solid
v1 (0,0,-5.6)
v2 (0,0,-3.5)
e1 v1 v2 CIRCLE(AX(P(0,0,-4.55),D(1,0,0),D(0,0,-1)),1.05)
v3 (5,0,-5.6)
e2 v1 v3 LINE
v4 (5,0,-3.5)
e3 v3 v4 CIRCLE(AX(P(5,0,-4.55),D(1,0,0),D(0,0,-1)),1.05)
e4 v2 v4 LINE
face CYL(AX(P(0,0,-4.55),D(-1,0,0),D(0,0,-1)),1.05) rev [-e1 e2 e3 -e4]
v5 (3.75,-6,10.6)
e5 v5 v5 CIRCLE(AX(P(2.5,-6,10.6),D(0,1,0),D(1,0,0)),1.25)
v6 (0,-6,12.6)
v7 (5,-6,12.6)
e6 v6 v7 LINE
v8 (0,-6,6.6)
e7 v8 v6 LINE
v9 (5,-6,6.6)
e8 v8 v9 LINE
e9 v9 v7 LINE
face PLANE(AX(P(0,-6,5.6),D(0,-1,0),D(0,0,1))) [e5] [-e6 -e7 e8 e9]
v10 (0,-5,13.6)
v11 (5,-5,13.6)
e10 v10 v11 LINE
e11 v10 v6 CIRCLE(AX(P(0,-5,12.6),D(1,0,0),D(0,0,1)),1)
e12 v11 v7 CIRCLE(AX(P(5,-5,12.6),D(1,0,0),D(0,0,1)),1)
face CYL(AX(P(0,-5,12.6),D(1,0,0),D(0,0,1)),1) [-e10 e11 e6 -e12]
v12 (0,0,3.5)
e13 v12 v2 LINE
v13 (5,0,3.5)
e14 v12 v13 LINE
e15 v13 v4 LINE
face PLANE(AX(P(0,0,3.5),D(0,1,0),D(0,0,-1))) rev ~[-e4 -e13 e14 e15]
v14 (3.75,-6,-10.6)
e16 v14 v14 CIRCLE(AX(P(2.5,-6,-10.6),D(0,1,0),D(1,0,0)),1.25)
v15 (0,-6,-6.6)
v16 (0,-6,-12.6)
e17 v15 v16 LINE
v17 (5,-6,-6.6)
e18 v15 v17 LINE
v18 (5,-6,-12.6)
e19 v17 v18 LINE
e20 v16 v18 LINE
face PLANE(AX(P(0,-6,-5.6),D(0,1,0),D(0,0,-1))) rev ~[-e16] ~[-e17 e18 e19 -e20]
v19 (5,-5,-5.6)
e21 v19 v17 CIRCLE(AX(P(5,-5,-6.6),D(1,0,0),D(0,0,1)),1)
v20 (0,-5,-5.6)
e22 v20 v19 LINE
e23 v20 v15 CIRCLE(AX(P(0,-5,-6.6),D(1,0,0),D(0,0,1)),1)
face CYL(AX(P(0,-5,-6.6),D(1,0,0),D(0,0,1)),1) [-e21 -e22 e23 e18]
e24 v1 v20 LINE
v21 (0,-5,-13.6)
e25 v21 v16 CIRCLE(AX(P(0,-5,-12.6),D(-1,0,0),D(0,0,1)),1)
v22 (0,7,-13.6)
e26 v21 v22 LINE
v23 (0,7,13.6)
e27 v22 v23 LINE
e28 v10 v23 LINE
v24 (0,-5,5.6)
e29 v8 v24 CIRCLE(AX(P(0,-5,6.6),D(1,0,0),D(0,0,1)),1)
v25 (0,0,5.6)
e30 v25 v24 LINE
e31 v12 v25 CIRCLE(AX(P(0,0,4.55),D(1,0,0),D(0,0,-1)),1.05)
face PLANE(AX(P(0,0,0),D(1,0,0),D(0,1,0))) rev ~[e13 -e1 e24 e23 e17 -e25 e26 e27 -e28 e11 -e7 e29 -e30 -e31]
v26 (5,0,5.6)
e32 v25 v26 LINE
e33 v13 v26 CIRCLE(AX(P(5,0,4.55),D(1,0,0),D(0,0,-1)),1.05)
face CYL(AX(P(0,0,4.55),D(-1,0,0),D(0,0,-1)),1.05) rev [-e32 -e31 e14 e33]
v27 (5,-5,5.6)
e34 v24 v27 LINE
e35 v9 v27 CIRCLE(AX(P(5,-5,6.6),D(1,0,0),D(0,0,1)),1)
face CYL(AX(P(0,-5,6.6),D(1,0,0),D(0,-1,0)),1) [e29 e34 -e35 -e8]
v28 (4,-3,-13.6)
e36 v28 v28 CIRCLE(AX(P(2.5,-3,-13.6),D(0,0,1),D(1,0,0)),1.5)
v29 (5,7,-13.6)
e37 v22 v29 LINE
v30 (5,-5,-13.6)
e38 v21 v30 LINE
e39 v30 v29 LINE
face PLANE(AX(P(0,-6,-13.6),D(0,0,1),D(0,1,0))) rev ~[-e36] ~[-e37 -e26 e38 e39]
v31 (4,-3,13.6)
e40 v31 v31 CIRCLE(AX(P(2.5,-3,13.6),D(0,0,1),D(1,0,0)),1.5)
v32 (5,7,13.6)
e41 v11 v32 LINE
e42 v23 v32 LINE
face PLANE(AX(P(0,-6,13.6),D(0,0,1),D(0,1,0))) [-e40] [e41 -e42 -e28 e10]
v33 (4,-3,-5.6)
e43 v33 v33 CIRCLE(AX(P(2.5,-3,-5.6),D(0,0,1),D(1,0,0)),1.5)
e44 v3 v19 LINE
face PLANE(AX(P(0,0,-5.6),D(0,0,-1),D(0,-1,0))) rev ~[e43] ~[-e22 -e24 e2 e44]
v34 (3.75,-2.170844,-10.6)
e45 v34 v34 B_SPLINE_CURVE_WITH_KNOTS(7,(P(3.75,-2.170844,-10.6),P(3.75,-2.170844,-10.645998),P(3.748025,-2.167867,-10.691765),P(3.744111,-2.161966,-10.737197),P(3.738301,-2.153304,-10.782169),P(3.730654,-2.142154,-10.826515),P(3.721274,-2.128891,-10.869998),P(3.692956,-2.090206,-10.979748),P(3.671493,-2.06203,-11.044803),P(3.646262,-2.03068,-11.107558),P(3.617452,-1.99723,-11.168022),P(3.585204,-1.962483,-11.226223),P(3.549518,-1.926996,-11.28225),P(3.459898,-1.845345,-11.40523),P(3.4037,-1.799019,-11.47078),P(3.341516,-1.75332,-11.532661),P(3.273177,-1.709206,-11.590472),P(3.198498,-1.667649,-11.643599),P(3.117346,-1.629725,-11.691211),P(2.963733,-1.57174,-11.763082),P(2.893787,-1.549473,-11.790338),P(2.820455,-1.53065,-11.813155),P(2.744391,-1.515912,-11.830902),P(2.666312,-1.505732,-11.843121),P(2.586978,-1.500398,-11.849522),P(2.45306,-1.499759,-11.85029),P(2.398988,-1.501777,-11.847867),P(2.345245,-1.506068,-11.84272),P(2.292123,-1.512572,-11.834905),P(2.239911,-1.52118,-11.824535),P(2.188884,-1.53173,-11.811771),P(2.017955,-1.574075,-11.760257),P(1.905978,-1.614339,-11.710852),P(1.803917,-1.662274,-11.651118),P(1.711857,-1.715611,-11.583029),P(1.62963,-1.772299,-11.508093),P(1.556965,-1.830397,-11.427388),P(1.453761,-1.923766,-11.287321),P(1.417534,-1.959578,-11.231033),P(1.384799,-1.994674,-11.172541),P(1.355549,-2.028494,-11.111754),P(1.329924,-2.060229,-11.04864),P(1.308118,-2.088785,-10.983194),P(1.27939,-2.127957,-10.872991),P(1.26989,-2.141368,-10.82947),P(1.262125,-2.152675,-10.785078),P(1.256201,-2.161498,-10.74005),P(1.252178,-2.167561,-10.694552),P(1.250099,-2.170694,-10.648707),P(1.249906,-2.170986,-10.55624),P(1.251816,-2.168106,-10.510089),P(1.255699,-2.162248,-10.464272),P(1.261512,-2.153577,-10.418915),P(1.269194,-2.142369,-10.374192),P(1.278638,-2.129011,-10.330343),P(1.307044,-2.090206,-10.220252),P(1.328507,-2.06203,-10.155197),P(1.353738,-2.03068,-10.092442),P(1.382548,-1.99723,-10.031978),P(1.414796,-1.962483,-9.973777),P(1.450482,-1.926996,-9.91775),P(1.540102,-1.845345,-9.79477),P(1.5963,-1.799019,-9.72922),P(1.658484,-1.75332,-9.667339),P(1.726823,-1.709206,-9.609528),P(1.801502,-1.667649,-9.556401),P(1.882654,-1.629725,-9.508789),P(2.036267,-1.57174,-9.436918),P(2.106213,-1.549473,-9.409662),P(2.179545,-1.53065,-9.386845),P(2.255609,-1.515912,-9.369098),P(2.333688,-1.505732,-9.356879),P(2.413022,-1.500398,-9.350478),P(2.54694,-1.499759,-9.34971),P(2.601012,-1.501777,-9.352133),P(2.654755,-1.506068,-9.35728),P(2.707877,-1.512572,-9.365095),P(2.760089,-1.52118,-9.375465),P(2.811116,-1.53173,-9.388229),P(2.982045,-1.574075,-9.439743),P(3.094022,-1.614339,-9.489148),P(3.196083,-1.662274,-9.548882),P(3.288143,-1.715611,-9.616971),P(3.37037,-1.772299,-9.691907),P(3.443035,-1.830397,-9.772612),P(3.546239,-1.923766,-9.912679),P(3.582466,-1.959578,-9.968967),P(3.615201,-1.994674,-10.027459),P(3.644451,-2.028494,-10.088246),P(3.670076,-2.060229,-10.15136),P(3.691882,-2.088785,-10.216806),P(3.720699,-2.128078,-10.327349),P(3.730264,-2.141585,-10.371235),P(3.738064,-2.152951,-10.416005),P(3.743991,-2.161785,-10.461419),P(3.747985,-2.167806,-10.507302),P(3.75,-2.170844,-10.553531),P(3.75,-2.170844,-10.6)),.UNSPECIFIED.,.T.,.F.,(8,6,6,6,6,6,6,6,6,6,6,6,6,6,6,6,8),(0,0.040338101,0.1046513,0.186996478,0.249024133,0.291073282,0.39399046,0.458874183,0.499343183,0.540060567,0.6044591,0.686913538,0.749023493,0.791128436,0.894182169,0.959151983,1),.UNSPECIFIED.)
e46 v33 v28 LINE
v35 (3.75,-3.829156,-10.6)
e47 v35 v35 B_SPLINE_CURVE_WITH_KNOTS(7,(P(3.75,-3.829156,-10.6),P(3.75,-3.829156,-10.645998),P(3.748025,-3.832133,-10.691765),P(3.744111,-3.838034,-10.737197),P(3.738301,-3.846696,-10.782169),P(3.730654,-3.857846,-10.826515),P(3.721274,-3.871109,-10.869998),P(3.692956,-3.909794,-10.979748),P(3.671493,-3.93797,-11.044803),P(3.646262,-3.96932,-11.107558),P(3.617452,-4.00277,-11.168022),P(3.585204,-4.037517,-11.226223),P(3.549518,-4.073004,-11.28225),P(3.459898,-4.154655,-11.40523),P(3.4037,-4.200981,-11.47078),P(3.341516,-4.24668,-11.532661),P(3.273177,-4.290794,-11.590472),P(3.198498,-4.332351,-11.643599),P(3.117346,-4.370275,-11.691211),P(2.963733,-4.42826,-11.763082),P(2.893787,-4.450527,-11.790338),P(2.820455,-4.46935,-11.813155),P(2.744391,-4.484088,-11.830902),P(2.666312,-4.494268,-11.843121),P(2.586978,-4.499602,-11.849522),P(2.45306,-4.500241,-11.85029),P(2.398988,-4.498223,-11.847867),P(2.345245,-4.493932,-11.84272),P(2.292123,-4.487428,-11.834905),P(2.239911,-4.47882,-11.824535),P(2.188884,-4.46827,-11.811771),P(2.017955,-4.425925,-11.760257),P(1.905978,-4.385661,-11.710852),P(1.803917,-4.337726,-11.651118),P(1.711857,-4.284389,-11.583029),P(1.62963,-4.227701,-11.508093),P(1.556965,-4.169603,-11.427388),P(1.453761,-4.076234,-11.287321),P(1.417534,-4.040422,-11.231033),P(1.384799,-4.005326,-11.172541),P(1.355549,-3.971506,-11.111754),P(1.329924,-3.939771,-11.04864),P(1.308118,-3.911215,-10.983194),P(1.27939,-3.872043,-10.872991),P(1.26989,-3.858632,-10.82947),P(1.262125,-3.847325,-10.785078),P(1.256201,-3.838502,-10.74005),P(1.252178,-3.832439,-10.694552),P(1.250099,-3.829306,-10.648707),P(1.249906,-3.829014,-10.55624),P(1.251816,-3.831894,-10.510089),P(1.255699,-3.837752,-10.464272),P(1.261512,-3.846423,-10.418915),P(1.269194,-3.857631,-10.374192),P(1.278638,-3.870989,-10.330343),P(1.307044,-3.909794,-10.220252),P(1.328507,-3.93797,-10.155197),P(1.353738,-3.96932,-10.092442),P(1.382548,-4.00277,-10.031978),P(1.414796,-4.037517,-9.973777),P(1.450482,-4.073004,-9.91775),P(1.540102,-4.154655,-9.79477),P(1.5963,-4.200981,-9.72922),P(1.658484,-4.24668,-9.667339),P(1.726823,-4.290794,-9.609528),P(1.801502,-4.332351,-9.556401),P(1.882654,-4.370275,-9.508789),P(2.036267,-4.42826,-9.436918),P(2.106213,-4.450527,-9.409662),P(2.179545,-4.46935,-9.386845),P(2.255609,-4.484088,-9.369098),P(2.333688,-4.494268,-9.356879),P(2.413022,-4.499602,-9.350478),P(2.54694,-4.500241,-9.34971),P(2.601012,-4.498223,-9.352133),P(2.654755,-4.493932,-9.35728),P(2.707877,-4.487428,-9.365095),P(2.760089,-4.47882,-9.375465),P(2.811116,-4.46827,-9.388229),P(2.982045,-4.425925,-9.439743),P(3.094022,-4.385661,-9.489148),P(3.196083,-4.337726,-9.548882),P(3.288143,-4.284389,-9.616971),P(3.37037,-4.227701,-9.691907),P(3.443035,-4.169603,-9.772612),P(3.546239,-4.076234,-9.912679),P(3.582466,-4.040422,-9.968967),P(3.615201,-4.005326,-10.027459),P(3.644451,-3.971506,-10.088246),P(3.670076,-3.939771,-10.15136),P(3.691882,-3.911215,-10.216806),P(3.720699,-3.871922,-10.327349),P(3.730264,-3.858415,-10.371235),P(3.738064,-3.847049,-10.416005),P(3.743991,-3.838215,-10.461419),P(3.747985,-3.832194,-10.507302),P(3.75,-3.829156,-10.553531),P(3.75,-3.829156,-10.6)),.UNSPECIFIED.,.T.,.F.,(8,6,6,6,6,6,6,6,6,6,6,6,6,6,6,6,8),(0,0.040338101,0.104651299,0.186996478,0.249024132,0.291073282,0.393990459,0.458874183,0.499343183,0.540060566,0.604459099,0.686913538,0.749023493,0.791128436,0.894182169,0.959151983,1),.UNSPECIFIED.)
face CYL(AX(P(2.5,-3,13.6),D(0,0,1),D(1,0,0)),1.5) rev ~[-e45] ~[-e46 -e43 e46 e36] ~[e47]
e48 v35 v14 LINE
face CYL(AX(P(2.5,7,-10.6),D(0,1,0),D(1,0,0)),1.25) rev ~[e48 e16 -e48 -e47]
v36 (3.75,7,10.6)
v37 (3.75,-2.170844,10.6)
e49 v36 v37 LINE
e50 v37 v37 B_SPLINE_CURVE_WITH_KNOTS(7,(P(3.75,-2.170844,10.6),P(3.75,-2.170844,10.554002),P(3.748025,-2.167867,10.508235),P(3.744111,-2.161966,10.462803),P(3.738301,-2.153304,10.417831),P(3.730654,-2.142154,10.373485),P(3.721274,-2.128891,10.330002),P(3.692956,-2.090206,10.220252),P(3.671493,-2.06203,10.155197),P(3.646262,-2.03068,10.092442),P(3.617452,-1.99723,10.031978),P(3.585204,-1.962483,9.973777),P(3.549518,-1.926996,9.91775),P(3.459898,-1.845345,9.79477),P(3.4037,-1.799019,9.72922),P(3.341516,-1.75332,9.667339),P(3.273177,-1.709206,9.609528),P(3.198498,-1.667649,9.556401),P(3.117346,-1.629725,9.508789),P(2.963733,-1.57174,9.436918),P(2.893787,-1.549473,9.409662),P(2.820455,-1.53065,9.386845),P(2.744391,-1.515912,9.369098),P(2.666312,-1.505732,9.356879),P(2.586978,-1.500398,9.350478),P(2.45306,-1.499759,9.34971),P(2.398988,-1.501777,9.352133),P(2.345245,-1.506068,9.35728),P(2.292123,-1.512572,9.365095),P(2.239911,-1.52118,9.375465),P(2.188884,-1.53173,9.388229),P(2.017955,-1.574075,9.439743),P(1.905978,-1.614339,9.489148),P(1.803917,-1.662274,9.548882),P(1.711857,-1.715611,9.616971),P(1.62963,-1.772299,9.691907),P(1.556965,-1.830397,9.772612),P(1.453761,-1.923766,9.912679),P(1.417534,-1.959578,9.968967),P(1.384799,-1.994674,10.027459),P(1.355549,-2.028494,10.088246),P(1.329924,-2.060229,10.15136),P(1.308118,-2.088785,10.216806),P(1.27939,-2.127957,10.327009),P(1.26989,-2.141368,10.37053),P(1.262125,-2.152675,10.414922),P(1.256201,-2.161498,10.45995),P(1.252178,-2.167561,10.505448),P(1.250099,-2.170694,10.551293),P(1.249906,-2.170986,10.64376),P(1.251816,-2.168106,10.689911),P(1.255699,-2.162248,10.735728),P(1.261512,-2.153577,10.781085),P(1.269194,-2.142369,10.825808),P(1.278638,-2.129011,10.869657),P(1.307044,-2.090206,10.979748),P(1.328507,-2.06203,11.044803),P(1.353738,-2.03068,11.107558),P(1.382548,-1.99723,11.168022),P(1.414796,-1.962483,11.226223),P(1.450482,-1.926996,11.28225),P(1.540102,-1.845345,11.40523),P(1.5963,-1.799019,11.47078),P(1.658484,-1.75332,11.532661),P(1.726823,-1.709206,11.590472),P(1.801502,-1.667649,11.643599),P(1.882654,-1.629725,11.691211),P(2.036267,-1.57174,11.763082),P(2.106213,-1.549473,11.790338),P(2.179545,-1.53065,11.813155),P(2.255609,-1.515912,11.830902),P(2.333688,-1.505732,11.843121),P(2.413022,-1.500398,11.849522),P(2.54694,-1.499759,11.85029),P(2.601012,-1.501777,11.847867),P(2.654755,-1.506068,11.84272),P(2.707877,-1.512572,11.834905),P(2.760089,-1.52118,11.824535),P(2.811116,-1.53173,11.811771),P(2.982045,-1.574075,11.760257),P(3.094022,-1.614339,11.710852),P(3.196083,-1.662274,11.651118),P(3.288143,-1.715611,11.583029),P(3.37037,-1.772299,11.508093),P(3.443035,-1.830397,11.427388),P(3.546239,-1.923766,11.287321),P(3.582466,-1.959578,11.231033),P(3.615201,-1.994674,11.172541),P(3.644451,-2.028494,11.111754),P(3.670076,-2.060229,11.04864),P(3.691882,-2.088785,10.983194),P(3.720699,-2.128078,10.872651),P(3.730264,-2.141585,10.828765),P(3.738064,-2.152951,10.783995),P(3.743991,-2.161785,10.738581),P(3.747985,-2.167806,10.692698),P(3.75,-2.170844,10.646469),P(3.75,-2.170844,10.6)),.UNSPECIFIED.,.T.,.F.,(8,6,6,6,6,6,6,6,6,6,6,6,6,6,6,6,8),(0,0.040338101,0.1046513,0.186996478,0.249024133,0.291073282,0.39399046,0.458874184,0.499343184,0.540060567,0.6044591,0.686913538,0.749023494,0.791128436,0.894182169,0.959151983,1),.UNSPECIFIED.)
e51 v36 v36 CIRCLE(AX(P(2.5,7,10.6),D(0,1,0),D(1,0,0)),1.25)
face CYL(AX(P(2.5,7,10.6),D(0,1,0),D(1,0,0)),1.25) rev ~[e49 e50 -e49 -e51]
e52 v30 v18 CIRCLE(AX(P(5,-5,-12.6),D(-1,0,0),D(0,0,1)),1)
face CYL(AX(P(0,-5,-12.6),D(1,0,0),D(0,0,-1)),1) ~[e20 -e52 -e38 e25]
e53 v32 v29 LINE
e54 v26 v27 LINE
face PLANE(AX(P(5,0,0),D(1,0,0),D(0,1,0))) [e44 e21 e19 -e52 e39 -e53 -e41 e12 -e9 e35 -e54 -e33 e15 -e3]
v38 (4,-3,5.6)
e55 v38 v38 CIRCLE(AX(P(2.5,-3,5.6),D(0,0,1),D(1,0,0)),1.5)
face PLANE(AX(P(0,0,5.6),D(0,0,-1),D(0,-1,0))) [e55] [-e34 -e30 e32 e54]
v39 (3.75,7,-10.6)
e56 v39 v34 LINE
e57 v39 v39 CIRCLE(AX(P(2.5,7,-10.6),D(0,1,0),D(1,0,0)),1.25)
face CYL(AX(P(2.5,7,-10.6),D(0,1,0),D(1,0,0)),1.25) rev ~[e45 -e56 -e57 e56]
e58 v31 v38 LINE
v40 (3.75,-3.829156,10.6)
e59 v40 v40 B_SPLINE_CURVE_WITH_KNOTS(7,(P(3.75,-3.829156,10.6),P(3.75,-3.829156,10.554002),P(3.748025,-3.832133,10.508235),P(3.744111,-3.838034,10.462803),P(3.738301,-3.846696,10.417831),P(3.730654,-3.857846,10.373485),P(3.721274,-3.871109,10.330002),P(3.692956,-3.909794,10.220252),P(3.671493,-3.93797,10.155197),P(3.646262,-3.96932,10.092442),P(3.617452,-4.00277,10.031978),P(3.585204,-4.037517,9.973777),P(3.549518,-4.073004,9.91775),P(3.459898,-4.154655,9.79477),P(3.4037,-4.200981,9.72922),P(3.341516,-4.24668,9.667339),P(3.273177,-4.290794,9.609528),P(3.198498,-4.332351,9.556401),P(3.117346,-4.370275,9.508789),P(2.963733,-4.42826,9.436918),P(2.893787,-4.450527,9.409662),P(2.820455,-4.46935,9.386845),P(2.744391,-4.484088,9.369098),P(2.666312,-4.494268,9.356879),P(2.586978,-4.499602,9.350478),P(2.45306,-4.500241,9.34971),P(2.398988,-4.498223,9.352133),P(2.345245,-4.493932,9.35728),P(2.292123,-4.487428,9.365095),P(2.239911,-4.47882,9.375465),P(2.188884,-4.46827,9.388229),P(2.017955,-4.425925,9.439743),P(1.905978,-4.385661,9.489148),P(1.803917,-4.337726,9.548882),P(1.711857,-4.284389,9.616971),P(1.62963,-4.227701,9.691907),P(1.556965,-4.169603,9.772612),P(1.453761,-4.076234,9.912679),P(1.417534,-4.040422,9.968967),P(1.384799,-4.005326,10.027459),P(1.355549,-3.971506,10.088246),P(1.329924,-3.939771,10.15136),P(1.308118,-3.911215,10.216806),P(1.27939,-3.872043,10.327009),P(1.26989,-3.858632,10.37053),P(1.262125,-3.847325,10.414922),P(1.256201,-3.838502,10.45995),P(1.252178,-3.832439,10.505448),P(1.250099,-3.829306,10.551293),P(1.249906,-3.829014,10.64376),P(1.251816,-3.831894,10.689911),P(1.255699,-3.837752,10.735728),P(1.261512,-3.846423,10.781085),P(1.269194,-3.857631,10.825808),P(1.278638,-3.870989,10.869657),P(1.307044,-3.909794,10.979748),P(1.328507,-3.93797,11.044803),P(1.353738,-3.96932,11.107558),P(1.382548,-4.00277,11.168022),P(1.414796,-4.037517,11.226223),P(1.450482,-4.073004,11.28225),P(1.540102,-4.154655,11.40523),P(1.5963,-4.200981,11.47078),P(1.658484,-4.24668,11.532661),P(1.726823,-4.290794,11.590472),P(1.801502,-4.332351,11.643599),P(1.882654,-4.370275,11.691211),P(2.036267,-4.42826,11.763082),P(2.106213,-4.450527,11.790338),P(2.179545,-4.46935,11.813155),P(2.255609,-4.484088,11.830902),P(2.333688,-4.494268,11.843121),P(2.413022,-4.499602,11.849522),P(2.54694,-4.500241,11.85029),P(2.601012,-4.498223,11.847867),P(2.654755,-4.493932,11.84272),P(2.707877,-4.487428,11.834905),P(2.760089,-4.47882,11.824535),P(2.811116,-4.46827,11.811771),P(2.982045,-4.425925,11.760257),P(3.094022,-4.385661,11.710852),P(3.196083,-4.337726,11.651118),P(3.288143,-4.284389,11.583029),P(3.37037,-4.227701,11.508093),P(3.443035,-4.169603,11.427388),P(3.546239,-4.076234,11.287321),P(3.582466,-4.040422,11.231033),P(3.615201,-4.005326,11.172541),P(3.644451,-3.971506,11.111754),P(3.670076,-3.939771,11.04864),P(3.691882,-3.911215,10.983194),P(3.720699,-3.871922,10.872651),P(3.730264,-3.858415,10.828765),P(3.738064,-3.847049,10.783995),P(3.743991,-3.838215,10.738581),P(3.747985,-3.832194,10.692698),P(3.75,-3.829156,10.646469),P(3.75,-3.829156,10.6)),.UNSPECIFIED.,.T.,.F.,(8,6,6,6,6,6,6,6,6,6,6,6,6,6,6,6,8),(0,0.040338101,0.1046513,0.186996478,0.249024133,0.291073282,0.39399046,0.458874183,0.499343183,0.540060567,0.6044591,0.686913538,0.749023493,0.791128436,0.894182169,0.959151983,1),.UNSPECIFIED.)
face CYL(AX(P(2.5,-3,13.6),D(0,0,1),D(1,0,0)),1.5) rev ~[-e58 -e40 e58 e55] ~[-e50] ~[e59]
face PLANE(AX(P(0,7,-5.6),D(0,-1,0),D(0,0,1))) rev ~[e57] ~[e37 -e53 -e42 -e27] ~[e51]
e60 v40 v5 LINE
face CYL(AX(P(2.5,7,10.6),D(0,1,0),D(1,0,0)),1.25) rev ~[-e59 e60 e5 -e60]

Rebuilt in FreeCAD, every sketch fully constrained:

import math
import FreeCAD as App
import Part
import Sketcher
Q = App.Units.Quantity


def edges_at(feature, points):
    """Names of the edges that pass closest to the given points."""
    edges = feature.Shape.Edges
    near = lambda p: min(range(len(edges)), key=lambda i: edges[i].distToShape(Part.Vertex(*p))[0])
    return sorted({f"Edge{near(p) + 1}" for p in points})

doc = App.newDocument("Part")
body = doc.addObject("PartDesign::Body", "Body")

sketch1 = body.newObject("Sketcher::SketchObject", "Sketch")
sketch1.AttachmentSupport = (doc.getObject("YZ_Plane"), [""])
sketch1.MapMode = "FlatFace"
sketch1.addGeometry(Part.LineSegment(App.Vector(7, 13.6, 0), App.Vector(-6, 13.6, 0)), False)
sketch1.addGeometry(Part.LineSegment(App.Vector(-6, 13.6, 0), App.Vector(-6, 5.6, 0)), False)
sketch1.addGeometry(Part.LineSegment(App.Vector(-6, 5.6, 0), App.Vector(0, 5.6, 0)), False)
sketch1.addGeometry(Part.ArcOfCircle(Part.Circle(App.Vector(0, 4.5, 0), App.Vector(0, 0, 1), 1), math.radians(-90), math.radians(90)), False)
sketch1.addGeometry(Part.LineSegment(App.Vector(0, 3.5, 0), App.Vector(0, -3.5, 0)), False)
sketch1.addGeometry(Part.ArcOfCircle(Part.Circle(App.Vector(0, -4.5, 0), App.Vector(0, 0, 1), 1), math.radians(-90), math.radians(90)), False)
sketch1.addGeometry(Part.LineSegment(App.Vector(0, -5.6, 0), App.Vector(-6, -5.6, 0)), False)
sketch1.addGeometry(Part.LineSegment(App.Vector(-6, -5.6, 0), App.Vector(-6, -13.6, 0)), False)
sketch1.addGeometry(Part.LineSegment(App.Vector(-6, -13.6, 0), App.Vector(7, -13.6, 0)), False)
sketch1.addGeometry(Part.LineSegment(App.Vector(7, -13.6, 0), App.Vector(7, 13.6, 0)), False)
sketch1.addConstraint(Sketcher.Constraint("Coincident", 0, 2, 1, 1))
sketch1.addConstraint(Sketcher.Constraint("Coincident", 1, 2, 2, 1))
sketch1.addConstraint(Sketcher.Constraint("Tangent", 2, 2, 3, 2))
sketch1.addConstraint(Sketcher.Constraint("Coincident", 3, 1, 4, 1))
sketch1.addConstraint(Sketcher.Constraint("Coincident", 4, 2, 5, 2))
sketch1.addConstraint(Sketcher.Constraint("Tangent", 5, 1, 6, 1))
sketch1.addConstraint(Sketcher.Constraint("Coincident", 6, 2, 7, 1))
sketch1.addConstraint(Sketcher.Constraint("Coincident", 7, 2, 8, 1))
sketch1.addConstraint(Sketcher.Constraint("Coincident", 8, 2, 9, 1))
sketch1.addConstraint(Sketcher.Constraint("Coincident", 9, 2, 0, 1))
sketch1.addConstraint(Sketcher.Constraint("Horizontal", 0))
sketch1.addConstraint(Sketcher.Constraint("Vertical", 1))
sketch1.addConstraint(Sketcher.Constraint("Horizontal", 2))
sketch1.addConstraint(Sketcher.Constraint("Vertical", 4))
sketch1.addConstraint(Sketcher.Constraint("Horizontal", 6))
sketch1.addConstraint(Sketcher.Constraint("Vertical", 7))
sketch1.addConstraint(Sketcher.Constraint("Horizontal", 8))
sketch1.addConstraint(Sketcher.Constraint("Vertical", 9))
sketch1.addConstraint(Sketcher.Constraint("Equal", 3, 5))
sketch1.addConstraint(Sketcher.Constraint("Symmetric", 3, 3, 5, 3, -1, 1))
sketch1.addConstraint(Sketcher.Constraint("Symmetric", 0, 2, 7, 2, -1))
sketch1.addConstraint(Sketcher.Constraint("PointOnObject", 3, 3, -2))
sketch1.addConstraint(Sketcher.Constraint("PointOnObject", 3, 1, -2))
sketch1.addConstraint(Sketcher.Constraint("DistanceX", 0, 2, 0, 1, Q("13 mm")))
sketch1.addConstraint(Sketcher.Constraint("DistanceY", 1, 2, 1, 1, Q("8 mm")))
sketch1.addConstraint(Sketcher.Constraint("DistanceY", 4, 2, 4, 1, Q("7 mm")))
sketch1.addConstraint(Sketcher.Constraint("Radius", 3, Q("1.05 mm")))
sketch1.addConstraint(Sketcher.Constraint("DistanceX", -1, 1, 8, 2, Q("7 mm")))
pad1 = body.newObject("PartDesign::Pad", "Pad")
pad1.Profile = sketch1
pad1.Length = 5

sketch2 = body.newObject("Sketcher::SketchObject", "Sketch001")
sketch2.AttachmentSupport = (doc.getObject("XZ_Plane"), [""])
sketch2.MapMode = "FlatFace"
sketch2.AttachmentOffset = App.Placement(App.Vector(0, 0, -7), App.Rotation())
sketch2.addGeometry(Part.Circle(App.Vector(2.5, 10.6, 0), App.Vector(0, 0, 1), 1.2), False)
sketch2.addGeometry(Part.Circle(App.Vector(2.5, -10.6, 0), App.Vector(0, 0, 1), 1.2), False)
sketch2.addConstraint(Sketcher.Constraint("Equal", 0, 1))
sketch2.addConstraint(Sketcher.Constraint("Symmetric", 0, 3, 1, 3, -1))
sketch2.addConstraint(Sketcher.Constraint("Diameter", 0, Q("2.5 mm")))
sketch2.addConstraint(Sketcher.Constraint("DistanceX", -1, 1, 0, 3, Q("2.5 mm")))
sketch2.addConstraint(Sketcher.Constraint("DistanceY", -1, 1, 0, 3, Q("10.6 mm")))
pocket1 = body.newObject("PartDesign::Pocket", "Pocket")
pocket1.Profile = sketch2
pocket1.Length = 13
pocket1.Reversed = True

sketch3 = body.newObject("Sketcher::SketchObject", "Sketch002")
sketch3.AttachmentSupport = (doc.getObject("XY_Plane"), [""])
sketch3.MapMode = "FlatFace"
sketch3.AttachmentOffset = App.Placement(App.Vector(0, 0, 13.6), App.Rotation())
sketch3.addGeometry(Part.Circle(App.Vector(2.5, -3, 0), App.Vector(0, 0, 1), 1.5), False)
sketch3.addConstraint(Sketcher.Constraint("Diameter", 0, Q("3 mm")))
sketch3.addConstraint(Sketcher.Constraint("DistanceY", 0, 3, -1, 1, Q("3 mm")))
sketch3.addConstraint(Sketcher.Constraint("DistanceX", -1, 1, 0, 3, Q("2.5 mm")))
pocket2 = body.newObject("PartDesign::Pocket", "Pocket001")
pocket2.Profile = sketch3
pocket2.Length = 27.2
doc.recompute()

fillet = body.newObject("PartDesign::Fillet", "Fillet")
fillet.Base = (pocket2, edges_at(pocket2, [
    (2.5, -6, -5.6),
    (2.5, -6, -13.6),
    (2.5, -6, 5.6),
    (2.5, -6, 13.6),
]))
fillet.Radius = 1

doc.recompute()
